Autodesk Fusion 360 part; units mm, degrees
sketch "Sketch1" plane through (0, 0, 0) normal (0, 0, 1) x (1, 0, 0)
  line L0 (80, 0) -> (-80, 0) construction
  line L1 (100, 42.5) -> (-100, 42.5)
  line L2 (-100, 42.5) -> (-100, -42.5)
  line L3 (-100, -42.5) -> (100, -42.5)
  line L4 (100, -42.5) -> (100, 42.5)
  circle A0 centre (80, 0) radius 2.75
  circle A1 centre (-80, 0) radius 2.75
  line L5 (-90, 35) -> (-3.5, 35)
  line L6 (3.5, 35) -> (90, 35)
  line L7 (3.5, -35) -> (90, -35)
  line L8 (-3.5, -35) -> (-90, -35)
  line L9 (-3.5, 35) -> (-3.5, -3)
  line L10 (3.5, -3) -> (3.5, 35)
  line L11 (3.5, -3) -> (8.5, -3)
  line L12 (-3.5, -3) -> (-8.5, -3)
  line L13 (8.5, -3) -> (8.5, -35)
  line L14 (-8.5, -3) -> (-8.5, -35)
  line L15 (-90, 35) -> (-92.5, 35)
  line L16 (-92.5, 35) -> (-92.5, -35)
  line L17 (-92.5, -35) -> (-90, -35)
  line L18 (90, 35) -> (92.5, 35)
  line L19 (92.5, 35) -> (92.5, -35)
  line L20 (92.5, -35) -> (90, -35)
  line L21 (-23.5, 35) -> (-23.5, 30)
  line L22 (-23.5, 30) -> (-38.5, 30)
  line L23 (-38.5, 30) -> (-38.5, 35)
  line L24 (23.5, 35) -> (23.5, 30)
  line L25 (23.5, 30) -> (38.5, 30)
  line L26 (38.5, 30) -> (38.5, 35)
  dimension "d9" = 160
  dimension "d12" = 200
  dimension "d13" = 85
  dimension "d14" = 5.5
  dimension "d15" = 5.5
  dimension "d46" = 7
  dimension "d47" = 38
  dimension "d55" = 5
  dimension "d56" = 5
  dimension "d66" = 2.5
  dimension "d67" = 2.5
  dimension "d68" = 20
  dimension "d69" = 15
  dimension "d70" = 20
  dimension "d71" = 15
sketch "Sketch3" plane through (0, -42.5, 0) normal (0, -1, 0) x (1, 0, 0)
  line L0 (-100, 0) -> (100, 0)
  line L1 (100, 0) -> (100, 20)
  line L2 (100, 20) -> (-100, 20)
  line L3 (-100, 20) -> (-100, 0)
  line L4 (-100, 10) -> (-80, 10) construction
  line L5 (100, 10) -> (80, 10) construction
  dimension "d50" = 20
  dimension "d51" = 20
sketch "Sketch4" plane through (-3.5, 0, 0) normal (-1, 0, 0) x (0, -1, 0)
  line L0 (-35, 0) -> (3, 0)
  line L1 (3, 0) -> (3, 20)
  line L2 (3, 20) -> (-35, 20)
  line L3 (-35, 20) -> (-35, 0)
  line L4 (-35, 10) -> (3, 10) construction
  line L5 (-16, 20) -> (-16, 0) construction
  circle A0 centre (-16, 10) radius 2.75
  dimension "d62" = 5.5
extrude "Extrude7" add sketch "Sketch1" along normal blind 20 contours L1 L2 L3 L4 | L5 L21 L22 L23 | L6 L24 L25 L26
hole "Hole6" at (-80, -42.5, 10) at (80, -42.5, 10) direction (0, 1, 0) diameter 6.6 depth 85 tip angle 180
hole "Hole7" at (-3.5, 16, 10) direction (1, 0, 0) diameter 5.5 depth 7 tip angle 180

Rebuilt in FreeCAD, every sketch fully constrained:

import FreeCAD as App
import Part
import Sketcher
from FreeCAD import Vector

doc = App.newDocument("Part")
body = doc.addObject("PartDesign::Body", "Body")

# Sketch on XY plane
sketch1 = body.newObject("Sketcher::SketchObject", "Sketch")
sketch1.AttachmentSupport = (doc.getObject("XY_Plane"), [""])
sketch1.MapMode = "FlatFace"
sketch1.addGeometry(Part.LineSegment(Vector(100, -42, 0), Vector(100, 42, 0)), False)
sketch1.addGeometry(Part.LineSegment(Vector(100, 42, 0), Vector(-100, 42, 0)), False)
sketch1.addGeometry(Part.LineSegment(Vector(-100, 42, 0), Vector(-100, -42, 0)), False)
sketch1.addGeometry(Part.LineSegment(Vector(-100, -42, 0), Vector(100, -42, 0)), False)
sketch1.addGeometry(Part.LineSegment(Vector(-92, 35, 0), Vector(-38, 35, 0)), False)
sketch1.addGeometry(Part.LineSegment(Vector(-38, 35, 0), Vector(-38, 30, 0)), False)
sketch1.addGeometry(Part.LineSegment(Vector(-38, 30, 0), Vector(-24, 30, 0)), False)
sketch1.addGeometry(Part.LineSegment(Vector(-24, 30, 0), Vector(-24, 35, 0)), False)
sketch1.addGeometry(Part.LineSegment(Vector(-24, 35, 0), Vector(-4, 35, 0)), False)
sketch1.addGeometry(Part.LineSegment(Vector(-4, 35, 0), Vector(-4, -3, 0)), False)
sketch1.addGeometry(Part.LineSegment(Vector(-4, -3, 0), Vector(-8, -3, 0)), False)
sketch1.addGeometry(Part.LineSegment(Vector(-8, -3, 0), Vector(-8, -35, 0)), False)
sketch1.addGeometry(Part.LineSegment(Vector(-8, -35, 0), Vector(-92, -35, 0)), False)
sketch1.addGeometry(Part.LineSegment(Vector(-92, -35, 0), Vector(-92, 35, 0)), False)
sketch1.addGeometry(Part.LineSegment(Vector(4, -3, 0), Vector(4, 35, 0)), False)
sketch1.addGeometry(Part.LineSegment(Vector(4, 35, 0), Vector(24, 35, 0)), False)
sketch1.addGeometry(Part.LineSegment(Vector(24, 35, 0), Vector(24, 30, 0)), False)
sketch1.addGeometry(Part.LineSegment(Vector(24, 30, 0), Vector(38, 30, 0)), False)
sketch1.addGeometry(Part.LineSegment(Vector(38, 30, 0), Vector(38, 35, 0)), False)
sketch1.addGeometry(Part.LineSegment(Vector(38, 35, 0), Vector(92, 35, 0)), False)
sketch1.addGeometry(Part.LineSegment(Vector(92, 35, 0), Vector(92, -35, 0)), False)
sketch1.addGeometry(Part.LineSegment(Vector(92, -35, 0), Vector(8, -35, 0)), False)
sketch1.addGeometry(Part.LineSegment(Vector(8, -35, 0), Vector(8, -3, 0)), False)
sketch1.addGeometry(Part.LineSegment(Vector(8, -3, 0), Vector(4, -3, 0)), False)
sketch1.addConstraint(Sketcher.Constraint("Coincident", 0, 2, 1, 1))
sketch1.addConstraint(Sketcher.Constraint("Coincident", 1, 2, 2, 1))
sketch1.addConstraint(Sketcher.Constraint("Coincident", 2, 2, 3, 1))
sketch1.addConstraint(Sketcher.Constraint("Coincident", 3, 2, 0, 1))
sketch1.addConstraint(Sketcher.Constraint("Coincident", 4, 2, 5, 1))
sketch1.addConstraint(Sketcher.Constraint("Coincident", 5, 2, 6, 1))
sketch1.addConstraint(Sketcher.Constraint("Coincident", 6, 2, 7, 1))
sketch1.addConstraint(Sketcher.Constraint("Coincident", 7, 2, 8, 1))
sketch1.addConstraint(Sketcher.Constraint("Coincident", 8, 2, 9, 1))
sketch1.addConstraint(Sketcher.Constraint("Coincident", 9, 2, 10, 1))
sketch1.addConstraint(Sketcher.Constraint("Coincident", 10, 2, 11, 1))
sketch1.addConstraint(Sketcher.Constraint("Coincident", 11, 2, 12, 1))
sketch1.addConstraint(Sketcher.Constraint("Coincident", 12, 2, 13, 1))
sketch1.addConstraint(Sketcher.Constraint("Coincident", 13, 2, 4, 1))
sketch1.addConstraint(Sketcher.Constraint("Coincident", 14, 2, 15, 1))
sketch1.addConstraint(Sketcher.Constraint("Coincident", 15, 2, 16, 1))
sketch1.addConstraint(Sketcher.Constraint("Coincident", 16, 2, 17, 1))
sketch1.addConstraint(Sketcher.Constraint("Coincident", 17, 2, 18, 1))
sketch1.addConstraint(Sketcher.Constraint("Coincident", 18, 2, 19, 1))
sketch1.addConstraint(Sketcher.Constraint("Coincident", 19, 2, 20, 1))
sketch1.addConstraint(Sketcher.Constraint("Coincident", 20, 2, 21, 1))
sketch1.addConstraint(Sketcher.Constraint("Coincident", 21, 2, 22, 1))
sketch1.addConstraint(Sketcher.Constraint("Coincident", 22, 2, 23, 1))
sketch1.addConstraint(Sketcher.Constraint("Coincident", 23, 2, 14, 1))
sketch1.addConstraint(Sketcher.Constraint("Vertical", 0))
sketch1.addConstraint(Sketcher.Constraint("Horizontal", 1))
sketch1.addConstraint(Sketcher.Constraint("Vertical", 2))
sketch1.addConstraint(Sketcher.Constraint("Horizontal", 3))
sketch1.addConstraint(Sketcher.Constraint("Horizontal", 4))
sketch1.addConstraint(Sketcher.Constraint("Vertical", 5))
sketch1.addConstraint(Sketcher.Constraint("Horizontal", 6))
sketch1.addConstraint(Sketcher.Constraint("Vertical", 7))
sketch1.addConstraint(Sketcher.Constraint("Horizontal", 8))
sketch1.addConstraint(Sketcher.Constraint("Vertical", 9))
sketch1.addConstraint(Sketcher.Constraint("Horizontal", 10))
sketch1.addConstraint(Sketcher.Constraint("Vertical", 11))
sketch1.addConstraint(Sketcher.Constraint("Horizontal", 12))
sketch1.addConstraint(Sketcher.Constraint("Vertical", 13))
sketch1.addConstraint(Sketcher.Constraint("Vertical", 14))
sketch1.addConstraint(Sketcher.Constraint("Horizontal", 15))
sketch1.addConstraint(Sketcher.Constraint("Vertical", 16))
sketch1.addConstraint(Sketcher.Constraint("Horizontal", 17))
sketch1.addConstraint(Sketcher.Constraint("Vertical", 18))
sketch1.addConstraint(Sketcher.Constraint("Horizontal", 19))
sketch1.addConstraint(Sketcher.Constraint("Vertical", 20))
sketch1.addConstraint(Sketcher.Constraint("Horizontal", 21))
sketch1.addConstraint(Sketcher.Constraint("Vertical", 22))
sketch1.addConstraint(Sketcher.Constraint("Horizontal", 23))
sketch1.addConstraint(Sketcher.Constraint("Symmetric", 0, 2, 2, 2, -1, 1))
sketch1.addConstraint(Sketcher.Constraint("Symmetric", 12, 2, 19, 2, -1, 1))
sketch1.addConstraint(Sketcher.Constraint("Symmetric", 8, 2, 14, 2, -2))
sketch1.addConstraint(Sketcher.Constraint("Symmetric", 6, 2, 16, 2, -2))
sketch1.addConstraint(Sketcher.Constraint("Symmetric", 4, 2, 18, 2, -2))
sketch1.addConstraint(Sketcher.Constraint("Symmetric", 11, 2, 21, 2, -2))
sketch1.addConstraint(Sketcher.Constraint("Horizontal", 4, 2, 7, 2))
sketch1.addConstraint(Sketcher.Constraint("Horizontal", 10, 2, 22, 2))
sketch1.addConstraint(Sketcher.Constraint("Equal", 23, 5))
sketch1.addConstraint(Sketcher.Constraint("DistanceX", 1, 2, 1, 1, 200.0))
sketch1.addConstraint(Sketcher.Constraint("DistanceX", 6, 1, 6, 2, 15.0))
sketch1.addConstraint(Sketcher.Constraint("DistanceX", 8, 1, 8, 2, 20.0))
sketch1.addConstraint(Sketcher.Constraint("DistanceX", 10, 2, 10, 1, 5.0))
sketch1.addConstraint(Sketcher.Constraint("DistanceY", 0, 1, 0, 2, 85.0))
sketch1.addConstraint(Sketcher.Constraint("DistanceY", 9, 2, 9, 1, 38.0))
sketch1.addConstraint(Sketcher.Constraint("DistanceX", 8, 2, 14, 2, 7.0))
sketch1.addConstraint(Sketcher.Constraint("DistanceX", 4, 1, 4, 2, 54.0))
sketch1.addConstraint(Sketcher.Constraint("DistanceY", 11, 2, 11, 1, 32.0))
pad1 = body.newObject("PartDesign::Pad", "Pad")
pad1.Profile = sketch1
pad1.Length = 20

# Sketch on XZ plane
sketch2 = body.newObject("Sketcher::SketchObject", "Sketch001")
sketch2.AttachmentSupport = (doc.getObject("XZ_Plane"), [""])
sketch2.MapMode = "FlatFace"
sketch2.AttachmentOffset = App.Placement(Vector(0, 0, 42.5), App.Rotation())
sketch2.addGeometry(Part.Circle(Vector(-80, 10, 0), Vector(0, 0, 1), 3.3), False)
sketch2.addGeometry(Part.Circle(Vector(80, 10, 0), Vector(0, 0, 1), 3.3), False)
sketch2.addConstraint(Sketcher.Constraint("Equal", 0, 1))
sketch2.addConstraint(Sketcher.Constraint("Symmetric", 0, 3, 1, 3, -2))
sketch2.addConstraint(Sketcher.Constraint("Diameter", 0, 6.6))
sketch2.addConstraint(Sketcher.Constraint("DistanceX", 0, 3, -1, 1, 80.0))
sketch2.addConstraint(Sketcher.Constraint("DistanceY", -1, 1, 0, 3, 10.0))
doc.recompute()
hole = body.newObject("PartDesign::Hole", "Hole")
hole.Profile = sketch2
hole.ThreadType = "None"
hole.Diameter = 6.6
hole.DepthType = "Dimension"
hole.Depth = 85
hole.DrillPoint = "Flat"

# Sketch on YZ plane
sketch3 = body.newObject("Sketcher::SketchObject", "Sketch002")
sketch3.AttachmentSupport = (doc.getObject("YZ_Plane"), [""])
sketch3.MapMode = "FlatFace"
sketch3.AttachmentOffset = App.Placement(Vector(0, 0, -3.5), App.Rotation())
sketch3.addGeometry(Part.Circle(Vector(16, 10, 0), Vector(0, 0, 1), 2.8), False)
sketch3.addConstraint(Sketcher.Constraint("Diameter", 0, 5.5))
sketch3.addConstraint(Sketcher.Constraint("DistanceX", -1, 1, 0, 3, 16.0))
sketch3.addConstraint(Sketcher.Constraint("DistanceY", -1, 1, 0, 3, 10.0))
doc.recompute()
hole2 = body.newObject("PartDesign::Hole", "Hole001")
hole2.Profile = sketch3
hole2.ThreadType = "None"
hole2.Diameter = 5.5
hole2.DepthType = "Dimension"
hole2.Depth = 7
hole2.DrillPoint = "Flat"
hole2.Reversed = True

doc.recompute()
